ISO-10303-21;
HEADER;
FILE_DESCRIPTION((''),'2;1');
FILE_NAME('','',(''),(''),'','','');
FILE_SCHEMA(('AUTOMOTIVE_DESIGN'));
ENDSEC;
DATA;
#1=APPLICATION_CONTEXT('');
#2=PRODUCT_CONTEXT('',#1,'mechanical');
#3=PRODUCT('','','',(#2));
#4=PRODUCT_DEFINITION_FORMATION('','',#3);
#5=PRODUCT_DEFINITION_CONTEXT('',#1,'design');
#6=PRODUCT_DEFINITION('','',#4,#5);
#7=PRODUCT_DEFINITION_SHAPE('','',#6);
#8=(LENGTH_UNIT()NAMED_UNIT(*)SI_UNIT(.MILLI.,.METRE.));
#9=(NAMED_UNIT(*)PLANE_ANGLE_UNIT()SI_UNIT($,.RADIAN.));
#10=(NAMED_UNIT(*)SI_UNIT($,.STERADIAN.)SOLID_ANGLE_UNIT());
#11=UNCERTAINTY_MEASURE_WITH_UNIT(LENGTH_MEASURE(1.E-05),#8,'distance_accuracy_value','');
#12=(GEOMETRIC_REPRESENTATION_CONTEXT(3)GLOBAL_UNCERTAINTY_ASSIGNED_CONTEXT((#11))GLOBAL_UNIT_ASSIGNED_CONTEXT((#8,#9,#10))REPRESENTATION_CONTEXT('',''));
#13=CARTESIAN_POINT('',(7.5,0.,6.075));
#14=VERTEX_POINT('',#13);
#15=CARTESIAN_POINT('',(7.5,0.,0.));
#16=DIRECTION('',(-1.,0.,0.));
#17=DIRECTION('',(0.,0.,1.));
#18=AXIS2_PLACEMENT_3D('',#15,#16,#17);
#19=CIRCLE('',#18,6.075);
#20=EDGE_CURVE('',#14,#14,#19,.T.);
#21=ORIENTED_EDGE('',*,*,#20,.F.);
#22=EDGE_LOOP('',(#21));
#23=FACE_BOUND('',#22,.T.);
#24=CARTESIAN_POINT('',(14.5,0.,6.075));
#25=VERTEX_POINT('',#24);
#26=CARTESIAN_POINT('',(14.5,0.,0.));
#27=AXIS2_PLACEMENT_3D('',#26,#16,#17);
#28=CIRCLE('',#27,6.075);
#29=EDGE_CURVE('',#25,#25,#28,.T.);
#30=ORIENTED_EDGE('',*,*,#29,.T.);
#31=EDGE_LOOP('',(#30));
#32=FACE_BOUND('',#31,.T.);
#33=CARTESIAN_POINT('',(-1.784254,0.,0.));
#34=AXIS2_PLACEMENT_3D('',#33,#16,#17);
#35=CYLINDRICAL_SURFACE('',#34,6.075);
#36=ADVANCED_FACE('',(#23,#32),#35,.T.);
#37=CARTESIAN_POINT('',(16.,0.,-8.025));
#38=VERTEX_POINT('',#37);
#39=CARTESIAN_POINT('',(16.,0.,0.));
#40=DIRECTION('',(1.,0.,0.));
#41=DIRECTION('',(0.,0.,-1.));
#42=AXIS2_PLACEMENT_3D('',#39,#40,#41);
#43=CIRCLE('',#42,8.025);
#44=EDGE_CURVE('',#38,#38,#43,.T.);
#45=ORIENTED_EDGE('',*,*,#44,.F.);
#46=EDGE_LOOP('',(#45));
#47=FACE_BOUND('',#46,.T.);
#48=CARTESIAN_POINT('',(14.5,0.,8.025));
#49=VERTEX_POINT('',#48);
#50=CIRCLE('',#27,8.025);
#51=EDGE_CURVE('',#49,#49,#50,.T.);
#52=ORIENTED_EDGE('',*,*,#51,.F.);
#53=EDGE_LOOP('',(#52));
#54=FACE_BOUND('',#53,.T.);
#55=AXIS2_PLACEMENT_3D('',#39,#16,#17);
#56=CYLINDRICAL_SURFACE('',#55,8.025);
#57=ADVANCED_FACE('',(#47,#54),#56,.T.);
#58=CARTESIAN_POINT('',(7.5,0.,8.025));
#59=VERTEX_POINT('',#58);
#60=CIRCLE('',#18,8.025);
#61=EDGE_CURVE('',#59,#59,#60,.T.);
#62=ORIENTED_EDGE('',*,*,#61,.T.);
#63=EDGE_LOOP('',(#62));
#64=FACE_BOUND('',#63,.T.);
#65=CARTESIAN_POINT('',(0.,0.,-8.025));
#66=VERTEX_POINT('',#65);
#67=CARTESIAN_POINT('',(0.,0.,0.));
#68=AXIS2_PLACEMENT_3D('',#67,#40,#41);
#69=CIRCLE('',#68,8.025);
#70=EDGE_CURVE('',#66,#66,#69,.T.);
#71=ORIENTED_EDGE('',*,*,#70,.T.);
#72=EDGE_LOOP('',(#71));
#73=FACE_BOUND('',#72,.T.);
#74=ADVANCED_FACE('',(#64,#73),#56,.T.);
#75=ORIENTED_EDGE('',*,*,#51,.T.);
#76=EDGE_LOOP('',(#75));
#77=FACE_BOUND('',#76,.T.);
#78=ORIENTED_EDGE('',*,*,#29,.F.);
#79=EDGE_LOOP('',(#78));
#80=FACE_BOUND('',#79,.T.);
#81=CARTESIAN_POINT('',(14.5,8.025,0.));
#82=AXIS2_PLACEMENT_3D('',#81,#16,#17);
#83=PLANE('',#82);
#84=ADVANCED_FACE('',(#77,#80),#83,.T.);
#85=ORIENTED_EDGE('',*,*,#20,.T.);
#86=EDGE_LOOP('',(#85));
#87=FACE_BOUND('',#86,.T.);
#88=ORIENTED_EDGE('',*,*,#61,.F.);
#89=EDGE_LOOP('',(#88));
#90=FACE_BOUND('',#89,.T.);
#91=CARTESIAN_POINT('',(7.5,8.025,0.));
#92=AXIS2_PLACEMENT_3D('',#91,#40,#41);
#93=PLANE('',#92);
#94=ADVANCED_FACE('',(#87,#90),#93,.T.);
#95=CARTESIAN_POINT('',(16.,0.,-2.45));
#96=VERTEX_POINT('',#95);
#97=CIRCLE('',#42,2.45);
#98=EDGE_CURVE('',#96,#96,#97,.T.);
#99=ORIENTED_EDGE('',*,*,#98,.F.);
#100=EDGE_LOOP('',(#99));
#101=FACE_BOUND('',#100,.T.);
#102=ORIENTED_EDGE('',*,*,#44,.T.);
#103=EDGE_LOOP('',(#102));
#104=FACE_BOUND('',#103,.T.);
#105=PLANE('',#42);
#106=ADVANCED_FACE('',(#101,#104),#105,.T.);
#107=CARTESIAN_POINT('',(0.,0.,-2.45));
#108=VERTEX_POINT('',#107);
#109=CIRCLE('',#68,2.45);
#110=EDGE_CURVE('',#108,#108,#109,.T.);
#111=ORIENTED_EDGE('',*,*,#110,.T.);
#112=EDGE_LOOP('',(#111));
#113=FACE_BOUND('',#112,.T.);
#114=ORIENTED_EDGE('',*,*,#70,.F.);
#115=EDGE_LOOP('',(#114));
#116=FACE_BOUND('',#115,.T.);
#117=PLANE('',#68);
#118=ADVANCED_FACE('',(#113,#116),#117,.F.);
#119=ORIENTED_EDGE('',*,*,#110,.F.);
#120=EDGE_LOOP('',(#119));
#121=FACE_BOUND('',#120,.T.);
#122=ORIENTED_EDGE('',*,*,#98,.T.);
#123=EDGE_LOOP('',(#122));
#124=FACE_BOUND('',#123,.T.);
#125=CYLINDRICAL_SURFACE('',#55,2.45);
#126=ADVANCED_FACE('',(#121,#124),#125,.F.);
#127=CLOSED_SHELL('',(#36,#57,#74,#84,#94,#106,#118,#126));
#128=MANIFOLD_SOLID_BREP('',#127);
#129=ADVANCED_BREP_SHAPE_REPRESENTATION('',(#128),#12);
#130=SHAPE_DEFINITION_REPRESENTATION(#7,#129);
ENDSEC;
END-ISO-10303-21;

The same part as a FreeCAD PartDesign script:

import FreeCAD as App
import Part
import Sketcher

V = App.Vector
Q = App.Units.Quantity


def add_polygon(sketch, points):
    """Adds a closed chain of lines whose ends are joined by coincident constraints."""
    first, n = sketch.GeometryCount, len(points)
    for a, b in zip(points, points[1:] + points[:1]):
        sketch.addGeometry(Part.LineSegment(App.Vector(*a, 0), App.Vector(*b, 0)), False)
    for i in range(n):
        sketch.addConstraint(Sketcher.Constraint("Coincident", first + i, 2, first + (i + 1) % n, 1))

doc = App.newDocument("Part")
params = doc.addObject("Spreadsheet::Sheet", "Params")
for row, (alias, value) in enumerate([
    ("sketch1_diameter", "4.9 mm"),
    ("sketch1_diameter2", "16.05 mm"),
    ("pad1_length", "16 mm"),
    ("sketch2_width", "7 mm"),
    ("sketch2_height", "1.95 mm"),
    ("groove_angle", "360 deg"),
], start=1):
    params.set(f"A{row}", alias)
    params.set(f"B{row}", "=" + value)
    params.setAlias(f"B{row}", alias)

body = doc.addObject("PartDesign::Body", "Body")

# Sketch on YZ plane
sketch1 = doc.addObject("Sketcher::SketchObject", "Sketch")
body.addObject(sketch1)
sketch1.AttachmentSupport = (doc.YZ_Plane, [""])
sketch1.MapMode = "FlatFace"
sketch1.addGeometry(Part.Circle(V(0, 0, 0), V(0, 0, 1), 8), False)
sketch1.addGeometry(Part.Circle(V(0, 0, 0), V(0, 0, 1), 2.5), False)
sketch1.addConstraint(Sketcher.Constraint("Coincident", 0, 3, -1, 1))
sketch1.addConstraint(Sketcher.Constraint("Coincident", 1, 3, -1, 1))
sketch1.addConstraint(Sketcher.Constraint("Diameter", 1, Q("4.9 mm")))
sketch1.addConstraint(Sketcher.Constraint("Diameter", 0, Q("16.05 mm")))
sketch1.setExpression("Constraints[2]", "Params.sketch1_diameter")
sketch1.setExpression("Constraints[3]", "Params.sketch1_diameter2")
pad1 = doc.addObject("PartDesign::Pad", "Pad")
body.addObject(pad1)
pad1.Profile = sketch1
pad1.setExpression("Length", "Params.pad1_length")

# Sketch on XY plane
sketch2 = doc.addObject("Sketcher::SketchObject", "Sketch001")
body.addObject(sketch2)
sketch2.AttachmentSupport = (doc.XY_Plane, [""])
sketch2.MapMode = "FlatFace"
add_polygon(sketch2, [(7.5, 8), (7.5, 6.1), (14.5, 6.1), (14.5, 8)])  # lines 0-3
sketch2.addConstraint(Sketcher.Constraint("Vertical", 0))
sketch2.addConstraint(Sketcher.Constraint("Horizontal", 1))
sketch2.addConstraint(Sketcher.Constraint("Vertical", 2))
sketch2.addConstraint(Sketcher.Constraint("Horizontal", 3))
sketch2.addConstraint(Sketcher.Constraint("DistanceX", 1, 1, 1, 2, Q("7 mm")))
sketch2.addConstraint(Sketcher.Constraint("DistanceY", 0, 2, 0, 1, Q("1.95 mm")))
sketch2.addConstraint(Sketcher.Constraint("DistanceX", -1, 1, 0, 2, Q("7.5 mm")))
sketch2.addConstraint(Sketcher.Constraint("DistanceY", -1, 1, 0, 2, Q("6.075 mm")))
sketch2.setExpression("Constraints[8]", "Params.sketch2_width")
sketch2.setExpression("Constraints[9]", "Params.sketch2_height")
groove = doc.addObject("PartDesign::Groove", "Groove")
body.addObject(groove)
groove.Profile = sketch2
groove.ReferenceAxis = (sketch2, ["H_Axis"])
groove.setExpression("Angle", "Params.groove_angle")

doc.recompute()
